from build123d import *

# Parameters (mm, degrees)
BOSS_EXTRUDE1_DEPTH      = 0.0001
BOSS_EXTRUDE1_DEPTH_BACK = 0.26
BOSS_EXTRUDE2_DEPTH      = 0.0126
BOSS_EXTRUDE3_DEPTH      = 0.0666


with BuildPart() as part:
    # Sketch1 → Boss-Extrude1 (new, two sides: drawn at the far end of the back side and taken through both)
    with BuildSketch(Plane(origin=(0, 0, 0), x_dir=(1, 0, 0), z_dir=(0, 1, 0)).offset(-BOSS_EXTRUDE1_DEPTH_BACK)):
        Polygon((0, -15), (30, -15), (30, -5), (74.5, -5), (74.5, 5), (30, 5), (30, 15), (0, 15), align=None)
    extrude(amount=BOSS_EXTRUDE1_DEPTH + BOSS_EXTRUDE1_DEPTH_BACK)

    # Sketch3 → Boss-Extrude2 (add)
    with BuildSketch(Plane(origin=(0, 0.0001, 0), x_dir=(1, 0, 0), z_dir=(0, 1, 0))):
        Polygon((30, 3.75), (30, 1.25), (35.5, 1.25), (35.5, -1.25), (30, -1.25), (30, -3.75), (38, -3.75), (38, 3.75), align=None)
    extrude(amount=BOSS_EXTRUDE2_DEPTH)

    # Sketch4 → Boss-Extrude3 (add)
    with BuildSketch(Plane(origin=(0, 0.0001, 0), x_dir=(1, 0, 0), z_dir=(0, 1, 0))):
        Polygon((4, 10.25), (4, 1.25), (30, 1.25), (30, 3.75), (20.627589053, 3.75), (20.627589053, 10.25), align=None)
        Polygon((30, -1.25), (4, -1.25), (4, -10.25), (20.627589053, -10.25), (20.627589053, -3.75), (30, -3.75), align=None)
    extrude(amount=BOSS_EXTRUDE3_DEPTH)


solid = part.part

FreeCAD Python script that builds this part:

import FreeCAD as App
import Part
import Sketcher
Q = App.Units.Quantity


def add_polygon(sketch, points):
    """Adds a closed chain of lines whose ends are joined by coincident constraints."""
    first, n = sketch.GeometryCount, len(points)
    for a, b in zip(points, points[1:] + points[:1]):
        sketch.addGeometry(Part.LineSegment(App.Vector(*a, 0), App.Vector(*b, 0)), False)
    for i in range(n):
        sketch.addConstraint(Sketcher.Constraint("Coincident", first + i, 2, first + (i + 1) % n, 1))

doc = App.newDocument("Part")
body = doc.addObject("PartDesign::Body", "Body")

# Sketch on XZ plane
sketch1 = body.newObject("Sketcher::SketchObject", "Sketch")
sketch1.AttachmentSupport = (doc.getObject("XZ_Plane"), [""])
sketch1.MapMode = "FlatFace"
add_polygon(sketch1, [(0, 15), (30, 15), (30, 5), (74.5, 5), (74.5, -5), (30, -5), (30, -15), (0, -15)])  # lines 0-7
sketch1.addConstraint(Sketcher.Constraint("Horizontal", 0))
sketch1.addConstraint(Sketcher.Constraint("Vertical", 1))
sketch1.addConstraint(Sketcher.Constraint("Horizontal", 2))
sketch1.addConstraint(Sketcher.Constraint("Vertical", 3))
sketch1.addConstraint(Sketcher.Constraint("Horizontal", 4))
sketch1.addConstraint(Sketcher.Constraint("Vertical", 5))
sketch1.addConstraint(Sketcher.Constraint("Horizontal", 6))
sketch1.addConstraint(Sketcher.Constraint("Vertical", 7))
sketch1.addConstraint(Sketcher.Constraint("Symmetric", 6, 2, 7, 2, -1, 1))
sketch1.addConstraint(Sketcher.Constraint("Symmetric", 1, 2, 4, 2, -1))
sketch1.addConstraint(Sketcher.Constraint("Equal", 1, 3))
sketch1.addConstraint(Sketcher.Constraint("Equal", 6, 7))
sketch1.addConstraint(Sketcher.Constraint("DistanceX", 0, 1, 0, 2, Q("30 mm")))
sketch1.addConstraint(Sketcher.Constraint("DistanceX", 2, 1, 2, 2, Q("44.5 mm")))
pad1 = body.newObject("PartDesign::Pad", "Pad")
pad1.Profile = sketch1
pad1.Type = "TwoLengths"
pad1.Length = 0.0001
pad1.Length2 = 0.26
pad1.Reversed = True

# Sketch on XZ plane
sketch2 = body.newObject("Sketcher::SketchObject", "Sketch001")
sketch2.AttachmentSupport = (doc.getObject("XZ_Plane"), [""])
sketch2.MapMode = "FlatFace"
sketch2.AttachmentOffset = App.Placement(App.Vector(0, 0, -0.0001), App.Rotation())
add_polygon(sketch2, [(30, -3.75), (30, -1.25), (35.5, -1.25), (35.5, 1.25), (30, 1.25), (30, 3.75), (38, 3.75), (38, -3.75)])  # lines 0-7
sketch2.addConstraint(Sketcher.Constraint("Vertical", 0))
sketch2.addConstraint(Sketcher.Constraint("Horizontal", 1))
sketch2.addConstraint(Sketcher.Constraint("Vertical", 2))
sketch2.addConstraint(Sketcher.Constraint("Horizontal", 3))
sketch2.addConstraint(Sketcher.Constraint("Vertical", 4))
sketch2.addConstraint(Sketcher.Constraint("Horizontal", 5))
sketch2.addConstraint(Sketcher.Constraint("Vertical", 6))
sketch2.addConstraint(Sketcher.Constraint("Horizontal", 7))
sketch2.addConstraint(Sketcher.Constraint("Symmetric", 0, 2, 3, 2, -1))
sketch2.addConstraint(Sketcher.Constraint("Equal", 0, 2))
sketch2.addConstraint(Sketcher.Constraint("Equal", 2, 4))
sketch2.addConstraint(Sketcher.Constraint("DistanceX", 5, 1, 5, 2, Q("8 mm")))
sketch2.addConstraint(Sketcher.Constraint("DistanceX", 1, 1, 1, 2, Q("5.5 mm")))
sketch2.addConstraint(Sketcher.Constraint("DistanceY", 0, 1, 0, 2, Q("2.5 mm")))
sketch2.addConstraint(Sketcher.Constraint("DistanceX", -1, 1, 0, 2, Q("30 mm")))
pad2 = body.newObject("PartDesign::Pad", "Pad001")
pad2.Profile = sketch2
pad2.Length = 0.0126
pad2.Reversed = True

# Sketch on XZ plane
sketch3 = body.newObject("Sketcher::SketchObject", "Sketch002")
sketch3.AttachmentSupport = (doc.getObject("XZ_Plane"), [""])
sketch3.MapMode = "FlatFace"
sketch3.AttachmentOffset = App.Placement(App.Vector(0, 0, -0.0001), App.Rotation())
add_polygon(sketch3, [(4, -10.25), (4, -1.25), (30, -1.25), (30, -3.75), (20.627589, -3.75), (20.627589, -10.25)])  # lines 0-5
add_polygon(sketch3, [(30, 1.25), (4, 1.25), (4, 10.25), (20.627589, 10.25), (20.627589, 3.75), (30, 3.75)])  # lines 6-11
sketch3.addConstraint(Sketcher.Constraint("Vertical", 0))
sketch3.addConstraint(Sketcher.Constraint("Horizontal", 1))
sketch3.addConstraint(Sketcher.Constraint("Vertical", 2))
sketch3.addConstraint(Sketcher.Constraint("Horizontal", 3))
sketch3.addConstraint(Sketcher.Constraint("Vertical", 4))
sketch3.addConstraint(Sketcher.Constraint("Horizontal", 5))
sketch3.addConstraint(Sketcher.Constraint("Horizontal", 6))
sketch3.addConstraint(Sketcher.Constraint("Vertical", 7))
sketch3.addConstraint(Sketcher.Constraint("Horizontal", 8))
sketch3.addConstraint(Sketcher.Constraint("Vertical", 9))
sketch3.addConstraint(Sketcher.Constraint("Horizontal", 10))
sketch3.addConstraint(Sketcher.Constraint("Vertical", 11))
sketch3.addConstraint(Sketcher.Constraint("Symmetric", 0, 2, 6, 2, -1))
sketch3.addConstraint(Sketcher.Constraint("Symmetric", 4, 2, 8, 2, -1))
sketch3.addConstraint(Sketcher.Constraint("Symmetric", 2, 2, 10, 2, -1))
sketch3.addConstraint(Sketcher.Constraint("DistanceX", 1, 1, 1, 2, Q("26 mm")))
sketch3.addConstraint(Sketcher.Constraint("DistanceY", 0, 1, 0, 2, Q("9 mm")))
sketch3.addConstraint(Sketcher.Constraint("DistanceY", 2, 2, 2, 1, Q("2.5 mm")))
sketch3.addConstraint(Sketcher.Constraint("DistanceX", -1, 1, 0, 2, Q("4 mm")))
sketch3.addConstraint(Sketcher.Constraint("DistanceY", 3, 2, 6, 2, Q("5 mm")))
sketch3.addConstraint(Sketcher.Constraint("DistanceX", 3, 2, 3, 1, Q("9.372411 mm")))
pad3 = body.newObject("PartDesign::Pad", "Pad002")
pad3.Profile = sketch3
pad3.Length = 0.0666
pad3.Reversed = True

doc.recompute()
